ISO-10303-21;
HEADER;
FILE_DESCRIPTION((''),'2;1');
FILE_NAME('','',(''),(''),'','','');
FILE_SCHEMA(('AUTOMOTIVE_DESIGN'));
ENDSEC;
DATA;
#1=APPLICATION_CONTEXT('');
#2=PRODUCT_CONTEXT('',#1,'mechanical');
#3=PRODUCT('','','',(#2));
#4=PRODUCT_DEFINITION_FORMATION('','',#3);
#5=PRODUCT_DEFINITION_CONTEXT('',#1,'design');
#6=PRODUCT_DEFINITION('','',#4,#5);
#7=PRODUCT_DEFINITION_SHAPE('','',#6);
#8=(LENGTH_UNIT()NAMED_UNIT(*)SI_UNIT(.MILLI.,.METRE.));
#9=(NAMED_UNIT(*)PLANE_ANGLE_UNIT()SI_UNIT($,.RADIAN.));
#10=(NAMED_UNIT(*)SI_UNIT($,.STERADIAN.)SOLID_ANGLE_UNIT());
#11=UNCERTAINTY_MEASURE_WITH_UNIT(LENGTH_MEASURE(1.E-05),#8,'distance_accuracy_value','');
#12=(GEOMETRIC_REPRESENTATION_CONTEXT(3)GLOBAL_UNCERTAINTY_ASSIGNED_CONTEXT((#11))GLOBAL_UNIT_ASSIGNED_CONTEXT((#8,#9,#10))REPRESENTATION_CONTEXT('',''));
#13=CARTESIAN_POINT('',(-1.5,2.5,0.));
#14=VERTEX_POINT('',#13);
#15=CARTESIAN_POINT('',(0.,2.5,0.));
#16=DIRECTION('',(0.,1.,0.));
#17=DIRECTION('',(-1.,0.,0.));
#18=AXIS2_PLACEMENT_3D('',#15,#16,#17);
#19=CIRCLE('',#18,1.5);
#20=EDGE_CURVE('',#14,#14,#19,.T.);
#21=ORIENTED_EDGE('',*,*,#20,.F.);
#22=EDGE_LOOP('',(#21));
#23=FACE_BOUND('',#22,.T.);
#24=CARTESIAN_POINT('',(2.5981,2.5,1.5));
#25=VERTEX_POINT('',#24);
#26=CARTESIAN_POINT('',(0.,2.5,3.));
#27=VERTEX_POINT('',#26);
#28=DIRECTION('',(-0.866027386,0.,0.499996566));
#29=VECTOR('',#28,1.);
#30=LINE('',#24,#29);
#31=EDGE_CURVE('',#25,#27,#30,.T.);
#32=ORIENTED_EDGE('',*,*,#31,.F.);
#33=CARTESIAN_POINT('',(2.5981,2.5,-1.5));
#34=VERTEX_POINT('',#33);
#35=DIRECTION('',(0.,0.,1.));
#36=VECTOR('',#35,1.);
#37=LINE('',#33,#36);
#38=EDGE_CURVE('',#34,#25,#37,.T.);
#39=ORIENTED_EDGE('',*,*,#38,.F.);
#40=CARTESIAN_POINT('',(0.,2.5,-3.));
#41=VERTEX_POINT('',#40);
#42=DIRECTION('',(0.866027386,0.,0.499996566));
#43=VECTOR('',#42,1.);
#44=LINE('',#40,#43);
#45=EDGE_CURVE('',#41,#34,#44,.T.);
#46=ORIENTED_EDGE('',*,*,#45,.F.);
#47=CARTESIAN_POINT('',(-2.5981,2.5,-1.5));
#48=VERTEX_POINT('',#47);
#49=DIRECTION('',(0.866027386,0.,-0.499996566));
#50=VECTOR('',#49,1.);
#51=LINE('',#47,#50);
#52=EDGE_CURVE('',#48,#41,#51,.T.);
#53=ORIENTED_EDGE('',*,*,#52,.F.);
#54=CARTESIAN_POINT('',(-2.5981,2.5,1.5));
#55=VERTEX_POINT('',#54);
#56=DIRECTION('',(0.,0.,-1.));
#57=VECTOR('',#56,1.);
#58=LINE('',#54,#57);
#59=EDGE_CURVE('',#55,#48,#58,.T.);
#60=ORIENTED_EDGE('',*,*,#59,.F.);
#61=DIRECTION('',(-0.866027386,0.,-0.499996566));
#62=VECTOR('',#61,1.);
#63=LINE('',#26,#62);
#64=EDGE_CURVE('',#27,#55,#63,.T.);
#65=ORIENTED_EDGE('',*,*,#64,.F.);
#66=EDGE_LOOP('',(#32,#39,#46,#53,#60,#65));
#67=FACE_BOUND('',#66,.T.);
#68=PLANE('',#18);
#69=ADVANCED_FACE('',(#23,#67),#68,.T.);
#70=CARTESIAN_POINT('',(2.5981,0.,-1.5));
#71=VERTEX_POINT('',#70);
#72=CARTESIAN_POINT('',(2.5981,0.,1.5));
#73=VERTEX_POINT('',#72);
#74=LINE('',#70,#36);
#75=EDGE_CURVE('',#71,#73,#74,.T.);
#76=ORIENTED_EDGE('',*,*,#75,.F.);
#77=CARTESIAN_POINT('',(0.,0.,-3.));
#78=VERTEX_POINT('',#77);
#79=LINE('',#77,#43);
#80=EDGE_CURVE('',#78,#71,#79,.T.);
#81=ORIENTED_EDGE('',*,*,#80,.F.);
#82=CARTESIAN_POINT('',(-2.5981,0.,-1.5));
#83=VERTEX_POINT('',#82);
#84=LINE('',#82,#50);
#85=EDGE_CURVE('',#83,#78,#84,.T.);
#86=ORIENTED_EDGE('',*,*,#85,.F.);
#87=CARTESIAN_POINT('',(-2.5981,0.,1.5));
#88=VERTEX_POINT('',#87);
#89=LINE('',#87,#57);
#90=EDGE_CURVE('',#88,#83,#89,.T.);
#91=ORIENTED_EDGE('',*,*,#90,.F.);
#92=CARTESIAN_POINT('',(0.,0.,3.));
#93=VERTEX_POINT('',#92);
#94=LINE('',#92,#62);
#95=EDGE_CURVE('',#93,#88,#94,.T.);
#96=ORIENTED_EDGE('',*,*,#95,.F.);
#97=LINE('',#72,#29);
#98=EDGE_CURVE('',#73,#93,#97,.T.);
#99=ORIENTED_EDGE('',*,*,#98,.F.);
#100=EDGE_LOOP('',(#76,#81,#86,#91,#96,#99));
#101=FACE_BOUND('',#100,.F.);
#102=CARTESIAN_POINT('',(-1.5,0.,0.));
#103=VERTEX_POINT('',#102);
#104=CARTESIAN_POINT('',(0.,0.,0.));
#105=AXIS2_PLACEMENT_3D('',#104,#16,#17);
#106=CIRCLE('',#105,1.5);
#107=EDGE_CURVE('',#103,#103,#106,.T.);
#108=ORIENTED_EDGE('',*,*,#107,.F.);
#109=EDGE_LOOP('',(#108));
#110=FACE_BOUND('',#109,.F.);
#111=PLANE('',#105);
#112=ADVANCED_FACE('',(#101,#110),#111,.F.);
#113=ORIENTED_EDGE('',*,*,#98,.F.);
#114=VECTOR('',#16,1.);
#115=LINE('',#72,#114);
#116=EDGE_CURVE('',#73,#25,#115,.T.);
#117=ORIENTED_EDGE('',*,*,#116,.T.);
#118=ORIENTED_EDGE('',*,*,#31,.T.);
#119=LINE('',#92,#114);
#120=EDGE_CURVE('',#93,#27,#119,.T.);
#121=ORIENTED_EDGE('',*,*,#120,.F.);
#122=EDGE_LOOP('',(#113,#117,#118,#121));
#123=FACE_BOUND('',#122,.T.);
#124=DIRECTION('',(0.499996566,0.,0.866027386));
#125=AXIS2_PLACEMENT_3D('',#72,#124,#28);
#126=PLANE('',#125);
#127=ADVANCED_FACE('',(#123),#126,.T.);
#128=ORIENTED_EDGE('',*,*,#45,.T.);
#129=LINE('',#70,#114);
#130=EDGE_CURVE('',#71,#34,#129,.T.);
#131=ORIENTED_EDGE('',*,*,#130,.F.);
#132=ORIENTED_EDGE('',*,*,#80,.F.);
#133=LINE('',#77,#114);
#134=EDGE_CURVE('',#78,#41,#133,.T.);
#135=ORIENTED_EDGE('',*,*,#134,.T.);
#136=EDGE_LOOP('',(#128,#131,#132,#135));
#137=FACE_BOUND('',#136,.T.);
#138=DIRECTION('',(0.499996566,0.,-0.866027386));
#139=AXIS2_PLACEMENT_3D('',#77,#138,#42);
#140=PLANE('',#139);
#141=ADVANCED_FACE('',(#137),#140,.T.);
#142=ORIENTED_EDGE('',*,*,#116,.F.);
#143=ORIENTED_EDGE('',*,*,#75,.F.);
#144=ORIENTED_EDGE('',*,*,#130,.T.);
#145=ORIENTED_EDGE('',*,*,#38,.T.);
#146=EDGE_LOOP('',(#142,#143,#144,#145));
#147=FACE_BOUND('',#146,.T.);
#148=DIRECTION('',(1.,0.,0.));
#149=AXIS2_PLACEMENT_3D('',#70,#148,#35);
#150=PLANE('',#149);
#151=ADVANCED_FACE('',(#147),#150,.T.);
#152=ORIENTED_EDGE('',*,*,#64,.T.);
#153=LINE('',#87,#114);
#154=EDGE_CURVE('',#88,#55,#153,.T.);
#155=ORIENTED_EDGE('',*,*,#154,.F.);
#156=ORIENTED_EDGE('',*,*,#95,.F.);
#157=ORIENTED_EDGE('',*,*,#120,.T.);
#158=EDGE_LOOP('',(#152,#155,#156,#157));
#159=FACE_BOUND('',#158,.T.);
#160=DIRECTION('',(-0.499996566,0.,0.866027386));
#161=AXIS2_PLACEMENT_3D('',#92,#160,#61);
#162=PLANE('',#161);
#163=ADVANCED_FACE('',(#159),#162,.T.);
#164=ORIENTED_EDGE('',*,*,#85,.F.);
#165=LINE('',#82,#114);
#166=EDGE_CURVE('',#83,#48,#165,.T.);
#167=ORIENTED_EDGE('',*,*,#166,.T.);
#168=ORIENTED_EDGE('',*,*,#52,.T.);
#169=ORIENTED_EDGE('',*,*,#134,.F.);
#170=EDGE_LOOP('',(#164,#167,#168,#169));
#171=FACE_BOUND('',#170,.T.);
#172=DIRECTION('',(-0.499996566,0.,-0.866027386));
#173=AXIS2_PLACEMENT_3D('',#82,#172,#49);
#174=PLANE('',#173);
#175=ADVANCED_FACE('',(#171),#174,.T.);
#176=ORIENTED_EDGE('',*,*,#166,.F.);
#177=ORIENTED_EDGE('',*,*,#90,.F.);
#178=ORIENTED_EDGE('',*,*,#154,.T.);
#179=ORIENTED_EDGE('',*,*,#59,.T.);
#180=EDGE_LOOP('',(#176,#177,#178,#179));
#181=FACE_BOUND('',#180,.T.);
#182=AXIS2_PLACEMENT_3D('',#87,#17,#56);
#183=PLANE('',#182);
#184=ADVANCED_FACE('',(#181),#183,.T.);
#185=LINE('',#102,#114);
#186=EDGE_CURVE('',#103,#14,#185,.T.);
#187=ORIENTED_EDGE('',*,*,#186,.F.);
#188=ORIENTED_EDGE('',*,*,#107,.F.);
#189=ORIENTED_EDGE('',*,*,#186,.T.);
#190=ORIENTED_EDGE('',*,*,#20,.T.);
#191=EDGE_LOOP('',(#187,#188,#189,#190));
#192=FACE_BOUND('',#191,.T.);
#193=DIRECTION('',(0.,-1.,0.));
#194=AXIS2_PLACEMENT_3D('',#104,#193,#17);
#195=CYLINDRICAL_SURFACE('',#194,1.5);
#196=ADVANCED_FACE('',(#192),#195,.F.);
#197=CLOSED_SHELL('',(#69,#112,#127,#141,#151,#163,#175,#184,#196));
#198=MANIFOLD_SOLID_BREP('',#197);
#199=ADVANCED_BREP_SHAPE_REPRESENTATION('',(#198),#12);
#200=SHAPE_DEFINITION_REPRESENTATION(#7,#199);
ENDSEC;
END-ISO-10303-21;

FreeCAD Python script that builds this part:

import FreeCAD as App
import Part
import Sketcher

V = App.Vector
Q = App.Units.Quantity


def add_polygon(sketch, points):
    """Adds a closed chain of lines whose ends are joined by coincident constraints."""
    first, n = sketch.GeometryCount, len(points)
    for a, b in zip(points, points[1:] + points[:1]):
        sketch.addGeometry(Part.LineSegment(App.Vector(*a, 0), App.Vector(*b, 0)), False)
    for i in range(n):
        sketch.addConstraint(Sketcher.Constraint("Coincident", first + i, 2, first + (i + 1) % n, 1))

doc = App.newDocument("Part")
body = doc.addObject("PartDesign::Body", "Body")

# Sketch on XZ plane
sketch1 = body.newObject("Sketcher::SketchObject", "Sketch")
sketch1.AttachmentSupport = (doc.getObject("XZ_Plane"), [""])
sketch1.MapMode = "FlatFace"
add_polygon(sketch1, [(2.6, -1.5), (0, -3), (-2.6, -1.5), (-2.6, 1.5), (0, 3), (2.6, 1.5)])  # lines 0-5
sketch1.addGeometry(Part.Circle(V(0, 0, 0), V(0, 0, 1), 1.5), False)  # 6
sketch1.addConstraint([
    Sketcher.Constraint("Vertical", 2),
    Sketcher.Constraint("Vertical", 5),
    Sketcher.Constraint("Coincident", 6, 3, -1, 1),
    Sketcher.Constraint("Symmetric", 0, 2, 3, 2, -1, 1),
    Sketcher.Constraint("Symmetric", 1, 2, 4, 2, -1, 1),
    Sketcher.Constraint("PointOnObject", 0, 2, -2),
    Sketcher.Constraint("Parallel", 0, 3),
    Sketcher.Constraint("Horizontal", 2, 2, 4, 2),
    Sketcher.Constraint("Diameter", 6, Q("3 mm")),
    Sketcher.Constraint("DistanceY", 2, 1, 2, 2, Q("3 mm")),
    Sketcher.Constraint("Distance", 0, Q("3 mm")),
    Sketcher.Constraint("DistanceY", 0, 2, -1, 1, Q("3 mm")),
])
pad1 = body.newObject("PartDesign::Pad", "Pad")
pad1.Profile = sketch1
pad1.Length = 2.5
pad1.Reversed = True

doc.recompute()
